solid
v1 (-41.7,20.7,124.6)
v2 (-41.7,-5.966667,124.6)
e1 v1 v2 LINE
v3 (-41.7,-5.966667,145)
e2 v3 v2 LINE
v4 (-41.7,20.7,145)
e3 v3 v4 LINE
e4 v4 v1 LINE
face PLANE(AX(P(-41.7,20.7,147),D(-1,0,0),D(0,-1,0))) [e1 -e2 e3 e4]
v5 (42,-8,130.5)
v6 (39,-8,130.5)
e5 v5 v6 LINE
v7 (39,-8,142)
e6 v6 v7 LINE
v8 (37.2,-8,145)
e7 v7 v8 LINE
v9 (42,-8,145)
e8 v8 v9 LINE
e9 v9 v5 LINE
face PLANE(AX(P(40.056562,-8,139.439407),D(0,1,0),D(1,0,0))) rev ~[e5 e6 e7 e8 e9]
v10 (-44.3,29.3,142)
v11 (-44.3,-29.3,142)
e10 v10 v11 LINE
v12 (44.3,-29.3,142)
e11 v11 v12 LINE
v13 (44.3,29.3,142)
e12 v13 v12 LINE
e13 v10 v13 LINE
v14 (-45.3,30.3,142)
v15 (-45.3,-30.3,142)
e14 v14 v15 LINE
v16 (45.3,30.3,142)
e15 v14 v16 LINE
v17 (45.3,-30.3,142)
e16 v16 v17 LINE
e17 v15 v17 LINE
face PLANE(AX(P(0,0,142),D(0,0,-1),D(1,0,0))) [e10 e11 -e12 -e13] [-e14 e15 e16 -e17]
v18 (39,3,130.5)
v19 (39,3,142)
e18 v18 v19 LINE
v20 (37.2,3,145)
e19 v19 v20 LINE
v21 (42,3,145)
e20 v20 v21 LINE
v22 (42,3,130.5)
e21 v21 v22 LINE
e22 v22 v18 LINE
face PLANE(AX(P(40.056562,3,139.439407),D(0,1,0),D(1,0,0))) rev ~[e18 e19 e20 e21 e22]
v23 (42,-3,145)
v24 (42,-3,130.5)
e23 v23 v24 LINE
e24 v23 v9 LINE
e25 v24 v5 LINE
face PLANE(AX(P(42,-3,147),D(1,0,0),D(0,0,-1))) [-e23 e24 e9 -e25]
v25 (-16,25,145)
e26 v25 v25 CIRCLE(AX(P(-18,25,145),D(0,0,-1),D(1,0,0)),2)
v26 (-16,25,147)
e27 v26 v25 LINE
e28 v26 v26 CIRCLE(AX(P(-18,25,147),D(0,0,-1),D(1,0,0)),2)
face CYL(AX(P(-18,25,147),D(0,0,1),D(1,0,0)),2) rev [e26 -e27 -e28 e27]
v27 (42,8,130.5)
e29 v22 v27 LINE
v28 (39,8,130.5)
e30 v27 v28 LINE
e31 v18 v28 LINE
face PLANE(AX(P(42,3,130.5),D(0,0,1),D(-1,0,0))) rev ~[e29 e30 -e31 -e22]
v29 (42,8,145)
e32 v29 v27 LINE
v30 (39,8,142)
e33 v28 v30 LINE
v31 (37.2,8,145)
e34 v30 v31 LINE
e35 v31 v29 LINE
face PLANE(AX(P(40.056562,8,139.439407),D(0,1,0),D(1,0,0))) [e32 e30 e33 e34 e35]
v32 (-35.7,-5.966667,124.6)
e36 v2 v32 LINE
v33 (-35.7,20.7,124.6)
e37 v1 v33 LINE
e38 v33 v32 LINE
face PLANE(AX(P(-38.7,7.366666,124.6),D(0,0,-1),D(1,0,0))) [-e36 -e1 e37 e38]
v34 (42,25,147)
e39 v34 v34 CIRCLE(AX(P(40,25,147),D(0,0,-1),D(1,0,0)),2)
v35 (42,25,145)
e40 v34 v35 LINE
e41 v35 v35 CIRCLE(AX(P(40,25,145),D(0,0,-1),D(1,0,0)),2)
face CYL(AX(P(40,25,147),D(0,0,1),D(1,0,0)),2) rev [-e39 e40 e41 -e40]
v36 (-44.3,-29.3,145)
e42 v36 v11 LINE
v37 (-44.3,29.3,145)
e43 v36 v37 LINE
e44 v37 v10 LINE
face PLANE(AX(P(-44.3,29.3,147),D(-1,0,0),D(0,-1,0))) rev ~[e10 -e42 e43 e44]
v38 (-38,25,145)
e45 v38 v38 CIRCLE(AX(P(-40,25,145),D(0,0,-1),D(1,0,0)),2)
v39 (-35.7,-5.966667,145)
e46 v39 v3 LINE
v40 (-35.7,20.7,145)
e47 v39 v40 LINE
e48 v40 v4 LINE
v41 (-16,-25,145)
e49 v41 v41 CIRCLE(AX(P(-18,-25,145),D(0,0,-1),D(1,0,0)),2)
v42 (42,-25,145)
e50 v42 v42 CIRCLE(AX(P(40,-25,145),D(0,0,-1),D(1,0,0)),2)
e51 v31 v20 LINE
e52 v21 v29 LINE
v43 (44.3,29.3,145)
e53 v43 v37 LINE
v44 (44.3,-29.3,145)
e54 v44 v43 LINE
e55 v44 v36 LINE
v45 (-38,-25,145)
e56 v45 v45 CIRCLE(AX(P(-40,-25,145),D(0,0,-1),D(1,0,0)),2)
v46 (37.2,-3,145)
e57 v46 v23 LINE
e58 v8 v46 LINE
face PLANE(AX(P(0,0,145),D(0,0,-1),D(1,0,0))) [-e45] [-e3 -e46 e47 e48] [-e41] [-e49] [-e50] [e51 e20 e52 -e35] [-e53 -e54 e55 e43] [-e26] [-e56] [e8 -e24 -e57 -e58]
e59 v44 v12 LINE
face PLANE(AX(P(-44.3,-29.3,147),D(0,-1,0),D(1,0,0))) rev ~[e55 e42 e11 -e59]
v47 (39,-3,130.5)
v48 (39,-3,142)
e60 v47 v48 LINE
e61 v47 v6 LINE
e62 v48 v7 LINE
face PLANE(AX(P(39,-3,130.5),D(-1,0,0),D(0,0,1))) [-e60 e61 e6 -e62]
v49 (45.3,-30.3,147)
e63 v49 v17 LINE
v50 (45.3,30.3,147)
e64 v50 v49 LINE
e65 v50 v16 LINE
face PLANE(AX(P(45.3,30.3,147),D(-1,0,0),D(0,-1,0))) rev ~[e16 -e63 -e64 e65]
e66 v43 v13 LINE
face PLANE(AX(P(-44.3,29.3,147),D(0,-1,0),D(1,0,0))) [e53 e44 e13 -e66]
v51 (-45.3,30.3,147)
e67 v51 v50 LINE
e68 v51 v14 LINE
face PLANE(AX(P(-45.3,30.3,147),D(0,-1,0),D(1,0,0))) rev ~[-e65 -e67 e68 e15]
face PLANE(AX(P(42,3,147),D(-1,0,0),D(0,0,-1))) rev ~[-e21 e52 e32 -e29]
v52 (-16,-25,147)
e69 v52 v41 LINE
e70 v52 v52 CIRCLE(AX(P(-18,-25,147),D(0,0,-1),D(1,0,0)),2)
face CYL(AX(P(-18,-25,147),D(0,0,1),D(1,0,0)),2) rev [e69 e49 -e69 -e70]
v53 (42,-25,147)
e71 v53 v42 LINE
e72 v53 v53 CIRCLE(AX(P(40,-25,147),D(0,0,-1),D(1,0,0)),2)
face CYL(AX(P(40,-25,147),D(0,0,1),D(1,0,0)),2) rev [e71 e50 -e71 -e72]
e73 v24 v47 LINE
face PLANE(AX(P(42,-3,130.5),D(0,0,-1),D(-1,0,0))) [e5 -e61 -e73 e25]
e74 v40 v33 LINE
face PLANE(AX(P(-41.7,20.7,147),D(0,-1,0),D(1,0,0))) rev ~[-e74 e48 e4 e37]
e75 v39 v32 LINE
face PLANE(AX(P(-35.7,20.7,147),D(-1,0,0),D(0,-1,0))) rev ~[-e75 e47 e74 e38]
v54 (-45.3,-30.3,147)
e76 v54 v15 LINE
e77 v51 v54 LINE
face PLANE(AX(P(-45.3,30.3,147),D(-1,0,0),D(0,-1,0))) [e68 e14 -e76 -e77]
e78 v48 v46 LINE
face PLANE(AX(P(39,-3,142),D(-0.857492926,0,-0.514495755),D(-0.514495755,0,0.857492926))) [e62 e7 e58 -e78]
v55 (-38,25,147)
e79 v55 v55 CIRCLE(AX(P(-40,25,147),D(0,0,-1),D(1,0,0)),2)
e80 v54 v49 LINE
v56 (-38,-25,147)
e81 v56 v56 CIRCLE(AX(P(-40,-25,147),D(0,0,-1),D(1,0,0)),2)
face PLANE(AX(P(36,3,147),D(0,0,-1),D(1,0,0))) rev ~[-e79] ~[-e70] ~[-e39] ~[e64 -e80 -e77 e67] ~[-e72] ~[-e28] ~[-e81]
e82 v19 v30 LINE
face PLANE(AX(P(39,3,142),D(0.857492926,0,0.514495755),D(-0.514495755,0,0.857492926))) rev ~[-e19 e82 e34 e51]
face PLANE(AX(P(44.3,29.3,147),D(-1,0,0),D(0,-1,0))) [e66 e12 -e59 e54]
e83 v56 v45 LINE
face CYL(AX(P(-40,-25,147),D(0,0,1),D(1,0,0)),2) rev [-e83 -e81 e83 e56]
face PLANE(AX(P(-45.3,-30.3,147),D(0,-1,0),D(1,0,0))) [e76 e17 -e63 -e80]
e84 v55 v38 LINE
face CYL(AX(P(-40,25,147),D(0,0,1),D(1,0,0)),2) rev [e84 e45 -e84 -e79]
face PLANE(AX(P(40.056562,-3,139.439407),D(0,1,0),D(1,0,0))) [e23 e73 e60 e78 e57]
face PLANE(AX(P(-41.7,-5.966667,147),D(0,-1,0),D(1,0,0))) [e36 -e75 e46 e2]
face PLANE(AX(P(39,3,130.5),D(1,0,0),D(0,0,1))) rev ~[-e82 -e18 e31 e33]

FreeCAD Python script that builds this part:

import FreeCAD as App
import Part
import Sketcher
from FreeCAD import Vector
Q = App.Units.Quantity

doc = App.newDocument("Part")
body = doc.addObject("PartDesign::Body", "Body")

sketch1 = body.newObject("Sketcher::SketchObject", "Sketch")
sketch1.AttachmentSupport = (doc.getObject("XY_Plane"), [""])
sketch1.MapMode = "FlatFace"
sketch1.addGeometry([
    Part.LineSegment(Vector(-45, 30, 0), Vector(-45, -30, 0)),
    Part.LineSegment(Vector(-45, -30, 0), Vector(45, -30, 0)),
    Part.LineSegment(Vector(45, -30, 0), Vector(45, 30, 0)),
    Part.LineSegment(Vector(45, 30, 0), Vector(-45, 30, 0)),
    Part.Circle(Vector(-40, -25, 0), Vector(0, 0, 1), 2),
    Part.Circle(Vector(-18, -25, 0), Vector(0, 0, 1), 2),
    Part.Circle(Vector(40, -25, 0), Vector(0, 0, 1), 2),
    Part.Circle(Vector(-40, 25, 0), Vector(0, 0, 1), 2),
    Part.Circle(Vector(-18, 25, 0), Vector(0, 0, 1), 2),
    Part.Circle(Vector(40, 25, 0), Vector(0, 0, 1), 2),
], False)
sketch1.addConstraint([
    Sketcher.Constraint("Coincident", 0, 2, 1, 1),
    Sketcher.Constraint("Coincident", 1, 2, 2, 1),
    Sketcher.Constraint("Coincident", 2, 2, 3, 1),
    Sketcher.Constraint("Coincident", 3, 2, 0, 1),
    Sketcher.Constraint("Vertical", 0),
    Sketcher.Constraint("Horizontal", 1),
    Sketcher.Constraint("Vertical", 2),
    Sketcher.Constraint("Horizontal", 3),
    Sketcher.Constraint("Equal", 4, 5),
    Sketcher.Constraint("Equal", 5, 6),
    Sketcher.Constraint("Equal", 6, 7),
    Sketcher.Constraint("Equal", 7, 8),
    Sketcher.Constraint("Equal", 8, 9),
    Sketcher.Constraint("Symmetric", 6, 3, 7, 3, -1, 1),
    Sketcher.Constraint("Symmetric", 4, 3, 9, 3, -1, 1),
    Sketcher.Constraint("Symmetric", 0, 2, 2, 2, -1, 1),
    Sketcher.Constraint("Symmetric", 4, 3, 6, 3, -2),
    Sketcher.Constraint("Symmetric", 5, 3, 8, 3, -1),
    Sketcher.Constraint("Horizontal", 4, 3, 5, 3),
    Sketcher.Constraint("Diameter", 4, Q("4 mm")),
    Sketcher.Constraint("DistanceX", 1, 1, 1, 2, Q("90 mm")),
    Sketcher.Constraint("DistanceY", 0, 2, 0, 1, Q("60 mm")),
    Sketcher.Constraint("DistanceX", 4, 3, -1, 1, Q("40 mm")),
    Sketcher.Constraint("DistanceY", 4, 3, -1, 1, Q("25 mm")),
    Sketcher.Constraint("DistanceX", 5, 3, -1, 1, Q("18 mm")),
])
pad1 = body.newObject("PartDesign::Pad", "Pad")
pad1.Profile = sketch1
pad1.Length = 2

sketch2 = body.newObject("Sketcher::SketchObject", "Sketch001")
sketch2.AttachmentSupport = (doc.getObject("XY_Plane"), [""])
sketch2.MapMode = "FlatFace"
sketch2.addGeometry([
    Part.LineSegment(Vector(-45, 30, 0), Vector(-45, -30, 0)),
    Part.LineSegment(Vector(-45, -30, 0), Vector(45, -30, 0)),
    Part.LineSegment(Vector(45, -30, 0), Vector(45, 30, 0)),
    Part.LineSegment(Vector(45, 30, 0), Vector(-45, 30, 0)),
    Part.LineSegment(Vector(44, -29, 0), Vector(-44, -29, 0)),
    Part.LineSegment(Vector(-44, -29, 0), Vector(-44, 29, 0)),
    Part.LineSegment(Vector(-44, 29, 0), Vector(44, 29, 0)),
    Part.LineSegment(Vector(44, 29, 0), Vector(44, -29, 0)),
], False)
sketch2.addConstraint([
    Sketcher.Constraint("Coincident", 0, 2, 1, 1),
    Sketcher.Constraint("Coincident", 1, 2, 2, 1),
    Sketcher.Constraint("Coincident", 2, 2, 3, 1),
    Sketcher.Constraint("Coincident", 3, 2, 0, 1),
    Sketcher.Constraint("Coincident", 4, 2, 5, 1),
    Sketcher.Constraint("Coincident", 5, 2, 6, 1),
    Sketcher.Constraint("Coincident", 6, 2, 7, 1),
    Sketcher.Constraint("Coincident", 7, 2, 4, 1),
    Sketcher.Constraint("Vertical", 0),
    Sketcher.Constraint("Horizontal", 1),
    Sketcher.Constraint("Vertical", 2),
    Sketcher.Constraint("Horizontal", 3),
    Sketcher.Constraint("Horizontal", 4),
    Sketcher.Constraint("Vertical", 5),
    Sketcher.Constraint("Horizontal", 6),
    Sketcher.Constraint("Vertical", 7),
    Sketcher.Constraint("Symmetric", 0, 2, 2, 2, -1, 1),
    Sketcher.Constraint("Symmetric", 4, 2, 6, 2, -1, 1),
    Sketcher.Constraint("DistanceX", 1, 1, 1, 2, Q("90.6 mm")),
    Sketcher.Constraint("DistanceX", 4, 2, 4, 1, Q("88.6 mm")),
    Sketcher.Constraint("DistanceY", 0, 2, 0, 1, Q("60.6 mm")),
    Sketcher.Constraint("DistanceY", 5, 1, 5, 2, Q("58.6 mm")),
])
pad2 = body.newObject("PartDesign::Pad", "Pad001")
pad2.Profile = sketch2
pad2.Length = 5

sketch3 = body.newObject("Sketcher::SketchObject", "Sketch002")
sketch3.AttachmentSupport = (doc.getObject("XY_Plane"), [""])
sketch3.MapMode = "FlatFace"
sketch3.addGeometry([
    Part.LineSegment(Vector(-42, 6, 0), Vector(-42, -21, 0)),
    Part.LineSegment(Vector(-42, -21, 0), Vector(-36, -21, 0)),
    Part.LineSegment(Vector(-36, -21, 0), Vector(-36, 6, 0)),
    Part.LineSegment(Vector(-36, 6, 0), Vector(-42, 6, 0)),
], False)
sketch3.addConstraint([
    Sketcher.Constraint("Coincident", 0, 2, 1, 1),
    Sketcher.Constraint("Coincident", 1, 2, 2, 1),
    Sketcher.Constraint("Coincident", 2, 2, 3, 1),
    Sketcher.Constraint("Coincident", 3, 2, 0, 1),
    Sketcher.Constraint("Vertical", 0),
    Sketcher.Constraint("Horizontal", 1),
    Sketcher.Constraint("Vertical", 2),
    Sketcher.Constraint("Horizontal", 3),
    Sketcher.Constraint("DistanceX", 1, 1, 1, 2, Q("6 mm")),
    Sketcher.Constraint("DistanceX", 0, 2, -1, 1, Q("41.7 mm")),
    Sketcher.Constraint("DistanceY", 0, 2, -1, 1, Q("20.7 mm")),
    Sketcher.Constraint("DistanceY", 0, 2, 0, 1, Q("26.666667 mm")),
])
pad3 = body.newObject("PartDesign::Pad", "Pad002")
pad3.Profile = sketch3
pad3.Length = 22.4

sketch4 = body.newObject("Sketcher::SketchObject", "Sketch003")
sketch4.AttachmentSupport = (doc.getObject("XZ_Plane"), [""])
sketch4.MapMode = "FlatFace"
sketch4.AttachmentOffset = App.Placement(Vector(0, 0, -3), App.Rotation())
sketch4.addGeometry([
    Part.LineSegment(Vector(36, 0, 0), Vector(42, 0, 0)),
    Part.LineSegment(Vector(42, 0, 0), Vector(42, 16.5, 0)),
    Part.LineSegment(Vector(42, 16.5, 0), Vector(39, 16.5, 0)),
    Part.LineSegment(Vector(39, 16.5, 0), Vector(39, 5, 0)),
    Part.LineSegment(Vector(39, 5, 0), Vector(36, 0, 0)),
], False)
sketch4.addConstraint([
    Sketcher.Constraint("Coincident", 0, 2, 1, 1),
    Sketcher.Constraint("Coincident", 1, 2, 2, 1),
    Sketcher.Constraint("Coincident", 2, 2, 3, 1),
    Sketcher.Constraint("Coincident", 3, 2, 4, 1),
    Sketcher.Constraint("Coincident", 4, 2, 0, 1),
    Sketcher.Constraint("Horizontal", 0),
    Sketcher.Constraint("Vertical", 1),
    Sketcher.Constraint("Horizontal", 2),
    Sketcher.Constraint("Vertical", 3),
    Sketcher.Constraint("PointOnObject", 0, 2, -1),
    Sketcher.Constraint("DistanceX", 0, 1, 0, 2, Q("6 mm")),
    Sketcher.Constraint("DistanceX", 2, 2, 2, 1, Q("3 mm")),
    Sketcher.Constraint("DistanceY", 1, 1, 1, 2, Q("16.5 mm")),
    Sketcher.Constraint("DistanceY", 3, 2, 3, 1, Q("11.5 mm")),
    Sketcher.Constraint("DistanceX", -1, 1, 0, 2, Q("42 mm")),
])
pad4 = body.newObject("PartDesign::Pad", "Pad003")
pad4.Profile = sketch4
pad4.Length = 5
pad4.Reversed = True

sketch5 = body.newObject("Sketcher::SketchObject", "Sketch004")
sketch5.AttachmentSupport = (doc.getObject("XZ_Plane"), [""])
sketch5.MapMode = "FlatFace"
sketch5.AttachmentOffset = App.Placement(Vector(0, 0, 3), App.Rotation())
sketch5.addGeometry([
    Part.LineSegment(Vector(36, 0, 0), Vector(42, 0, 0)),
    Part.LineSegment(Vector(42, 0, 0), Vector(42, 16.5, 0)),
    Part.LineSegment(Vector(42, 16.5, 0), Vector(39, 16.5, 0)),
    Part.LineSegment(Vector(39, 16.5, 0), Vector(39, 5, 0)),
    Part.LineSegment(Vector(39, 5, 0), Vector(36, 0, 0)),
], False)
sketch5.addConstraint([
    Sketcher.Constraint("Coincident", 0, 2, 1, 1),
    Sketcher.Constraint("Coincident", 1, 2, 2, 1),
    Sketcher.Constraint("Coincident", 2, 2, 3, 1),
    Sketcher.Constraint("Coincident", 3, 2, 4, 1),
    Sketcher.Constraint("Coincident", 4, 2, 0, 1),
    Sketcher.Constraint("Horizontal", 0),
    Sketcher.Constraint("Vertical", 1),
    Sketcher.Constraint("Horizontal", 2),
    Sketcher.Constraint("Vertical", 3),
    Sketcher.Constraint("PointOnObject", 0, 2, -1),
    Sketcher.Constraint("DistanceX", 0, 1, 0, 2, Q("6 mm")),
    Sketcher.Constraint("DistanceX", 2, 2, 2, 1, Q("3 mm")),
    Sketcher.Constraint("DistanceY", 1, 1, 1, 2, Q("16.5 mm")),
    Sketcher.Constraint("DistanceY", 3, 2, 3, 1, Q("11.5 mm")),
    Sketcher.Constraint("DistanceX", -1, 1, 0, 2, Q("42 mm")),
])
pad5 = body.newObject("PartDesign::Pad", "Pad004")
pad5.Profile = sketch5
pad5.Length = 5
body2 = doc.addObject("PartDesign::Body", "Body001")
doc.recompute()

body.Placement = App.Placement(Vector(0, 0, 147), App.Rotation(Vector(1, 0, 0), 180))
boolean = body2.newObject("PartDesign::Boolean", "Boolean")
boolean.Type = "Fuse"
boolean.addObjects([body])

doc.recompute()
